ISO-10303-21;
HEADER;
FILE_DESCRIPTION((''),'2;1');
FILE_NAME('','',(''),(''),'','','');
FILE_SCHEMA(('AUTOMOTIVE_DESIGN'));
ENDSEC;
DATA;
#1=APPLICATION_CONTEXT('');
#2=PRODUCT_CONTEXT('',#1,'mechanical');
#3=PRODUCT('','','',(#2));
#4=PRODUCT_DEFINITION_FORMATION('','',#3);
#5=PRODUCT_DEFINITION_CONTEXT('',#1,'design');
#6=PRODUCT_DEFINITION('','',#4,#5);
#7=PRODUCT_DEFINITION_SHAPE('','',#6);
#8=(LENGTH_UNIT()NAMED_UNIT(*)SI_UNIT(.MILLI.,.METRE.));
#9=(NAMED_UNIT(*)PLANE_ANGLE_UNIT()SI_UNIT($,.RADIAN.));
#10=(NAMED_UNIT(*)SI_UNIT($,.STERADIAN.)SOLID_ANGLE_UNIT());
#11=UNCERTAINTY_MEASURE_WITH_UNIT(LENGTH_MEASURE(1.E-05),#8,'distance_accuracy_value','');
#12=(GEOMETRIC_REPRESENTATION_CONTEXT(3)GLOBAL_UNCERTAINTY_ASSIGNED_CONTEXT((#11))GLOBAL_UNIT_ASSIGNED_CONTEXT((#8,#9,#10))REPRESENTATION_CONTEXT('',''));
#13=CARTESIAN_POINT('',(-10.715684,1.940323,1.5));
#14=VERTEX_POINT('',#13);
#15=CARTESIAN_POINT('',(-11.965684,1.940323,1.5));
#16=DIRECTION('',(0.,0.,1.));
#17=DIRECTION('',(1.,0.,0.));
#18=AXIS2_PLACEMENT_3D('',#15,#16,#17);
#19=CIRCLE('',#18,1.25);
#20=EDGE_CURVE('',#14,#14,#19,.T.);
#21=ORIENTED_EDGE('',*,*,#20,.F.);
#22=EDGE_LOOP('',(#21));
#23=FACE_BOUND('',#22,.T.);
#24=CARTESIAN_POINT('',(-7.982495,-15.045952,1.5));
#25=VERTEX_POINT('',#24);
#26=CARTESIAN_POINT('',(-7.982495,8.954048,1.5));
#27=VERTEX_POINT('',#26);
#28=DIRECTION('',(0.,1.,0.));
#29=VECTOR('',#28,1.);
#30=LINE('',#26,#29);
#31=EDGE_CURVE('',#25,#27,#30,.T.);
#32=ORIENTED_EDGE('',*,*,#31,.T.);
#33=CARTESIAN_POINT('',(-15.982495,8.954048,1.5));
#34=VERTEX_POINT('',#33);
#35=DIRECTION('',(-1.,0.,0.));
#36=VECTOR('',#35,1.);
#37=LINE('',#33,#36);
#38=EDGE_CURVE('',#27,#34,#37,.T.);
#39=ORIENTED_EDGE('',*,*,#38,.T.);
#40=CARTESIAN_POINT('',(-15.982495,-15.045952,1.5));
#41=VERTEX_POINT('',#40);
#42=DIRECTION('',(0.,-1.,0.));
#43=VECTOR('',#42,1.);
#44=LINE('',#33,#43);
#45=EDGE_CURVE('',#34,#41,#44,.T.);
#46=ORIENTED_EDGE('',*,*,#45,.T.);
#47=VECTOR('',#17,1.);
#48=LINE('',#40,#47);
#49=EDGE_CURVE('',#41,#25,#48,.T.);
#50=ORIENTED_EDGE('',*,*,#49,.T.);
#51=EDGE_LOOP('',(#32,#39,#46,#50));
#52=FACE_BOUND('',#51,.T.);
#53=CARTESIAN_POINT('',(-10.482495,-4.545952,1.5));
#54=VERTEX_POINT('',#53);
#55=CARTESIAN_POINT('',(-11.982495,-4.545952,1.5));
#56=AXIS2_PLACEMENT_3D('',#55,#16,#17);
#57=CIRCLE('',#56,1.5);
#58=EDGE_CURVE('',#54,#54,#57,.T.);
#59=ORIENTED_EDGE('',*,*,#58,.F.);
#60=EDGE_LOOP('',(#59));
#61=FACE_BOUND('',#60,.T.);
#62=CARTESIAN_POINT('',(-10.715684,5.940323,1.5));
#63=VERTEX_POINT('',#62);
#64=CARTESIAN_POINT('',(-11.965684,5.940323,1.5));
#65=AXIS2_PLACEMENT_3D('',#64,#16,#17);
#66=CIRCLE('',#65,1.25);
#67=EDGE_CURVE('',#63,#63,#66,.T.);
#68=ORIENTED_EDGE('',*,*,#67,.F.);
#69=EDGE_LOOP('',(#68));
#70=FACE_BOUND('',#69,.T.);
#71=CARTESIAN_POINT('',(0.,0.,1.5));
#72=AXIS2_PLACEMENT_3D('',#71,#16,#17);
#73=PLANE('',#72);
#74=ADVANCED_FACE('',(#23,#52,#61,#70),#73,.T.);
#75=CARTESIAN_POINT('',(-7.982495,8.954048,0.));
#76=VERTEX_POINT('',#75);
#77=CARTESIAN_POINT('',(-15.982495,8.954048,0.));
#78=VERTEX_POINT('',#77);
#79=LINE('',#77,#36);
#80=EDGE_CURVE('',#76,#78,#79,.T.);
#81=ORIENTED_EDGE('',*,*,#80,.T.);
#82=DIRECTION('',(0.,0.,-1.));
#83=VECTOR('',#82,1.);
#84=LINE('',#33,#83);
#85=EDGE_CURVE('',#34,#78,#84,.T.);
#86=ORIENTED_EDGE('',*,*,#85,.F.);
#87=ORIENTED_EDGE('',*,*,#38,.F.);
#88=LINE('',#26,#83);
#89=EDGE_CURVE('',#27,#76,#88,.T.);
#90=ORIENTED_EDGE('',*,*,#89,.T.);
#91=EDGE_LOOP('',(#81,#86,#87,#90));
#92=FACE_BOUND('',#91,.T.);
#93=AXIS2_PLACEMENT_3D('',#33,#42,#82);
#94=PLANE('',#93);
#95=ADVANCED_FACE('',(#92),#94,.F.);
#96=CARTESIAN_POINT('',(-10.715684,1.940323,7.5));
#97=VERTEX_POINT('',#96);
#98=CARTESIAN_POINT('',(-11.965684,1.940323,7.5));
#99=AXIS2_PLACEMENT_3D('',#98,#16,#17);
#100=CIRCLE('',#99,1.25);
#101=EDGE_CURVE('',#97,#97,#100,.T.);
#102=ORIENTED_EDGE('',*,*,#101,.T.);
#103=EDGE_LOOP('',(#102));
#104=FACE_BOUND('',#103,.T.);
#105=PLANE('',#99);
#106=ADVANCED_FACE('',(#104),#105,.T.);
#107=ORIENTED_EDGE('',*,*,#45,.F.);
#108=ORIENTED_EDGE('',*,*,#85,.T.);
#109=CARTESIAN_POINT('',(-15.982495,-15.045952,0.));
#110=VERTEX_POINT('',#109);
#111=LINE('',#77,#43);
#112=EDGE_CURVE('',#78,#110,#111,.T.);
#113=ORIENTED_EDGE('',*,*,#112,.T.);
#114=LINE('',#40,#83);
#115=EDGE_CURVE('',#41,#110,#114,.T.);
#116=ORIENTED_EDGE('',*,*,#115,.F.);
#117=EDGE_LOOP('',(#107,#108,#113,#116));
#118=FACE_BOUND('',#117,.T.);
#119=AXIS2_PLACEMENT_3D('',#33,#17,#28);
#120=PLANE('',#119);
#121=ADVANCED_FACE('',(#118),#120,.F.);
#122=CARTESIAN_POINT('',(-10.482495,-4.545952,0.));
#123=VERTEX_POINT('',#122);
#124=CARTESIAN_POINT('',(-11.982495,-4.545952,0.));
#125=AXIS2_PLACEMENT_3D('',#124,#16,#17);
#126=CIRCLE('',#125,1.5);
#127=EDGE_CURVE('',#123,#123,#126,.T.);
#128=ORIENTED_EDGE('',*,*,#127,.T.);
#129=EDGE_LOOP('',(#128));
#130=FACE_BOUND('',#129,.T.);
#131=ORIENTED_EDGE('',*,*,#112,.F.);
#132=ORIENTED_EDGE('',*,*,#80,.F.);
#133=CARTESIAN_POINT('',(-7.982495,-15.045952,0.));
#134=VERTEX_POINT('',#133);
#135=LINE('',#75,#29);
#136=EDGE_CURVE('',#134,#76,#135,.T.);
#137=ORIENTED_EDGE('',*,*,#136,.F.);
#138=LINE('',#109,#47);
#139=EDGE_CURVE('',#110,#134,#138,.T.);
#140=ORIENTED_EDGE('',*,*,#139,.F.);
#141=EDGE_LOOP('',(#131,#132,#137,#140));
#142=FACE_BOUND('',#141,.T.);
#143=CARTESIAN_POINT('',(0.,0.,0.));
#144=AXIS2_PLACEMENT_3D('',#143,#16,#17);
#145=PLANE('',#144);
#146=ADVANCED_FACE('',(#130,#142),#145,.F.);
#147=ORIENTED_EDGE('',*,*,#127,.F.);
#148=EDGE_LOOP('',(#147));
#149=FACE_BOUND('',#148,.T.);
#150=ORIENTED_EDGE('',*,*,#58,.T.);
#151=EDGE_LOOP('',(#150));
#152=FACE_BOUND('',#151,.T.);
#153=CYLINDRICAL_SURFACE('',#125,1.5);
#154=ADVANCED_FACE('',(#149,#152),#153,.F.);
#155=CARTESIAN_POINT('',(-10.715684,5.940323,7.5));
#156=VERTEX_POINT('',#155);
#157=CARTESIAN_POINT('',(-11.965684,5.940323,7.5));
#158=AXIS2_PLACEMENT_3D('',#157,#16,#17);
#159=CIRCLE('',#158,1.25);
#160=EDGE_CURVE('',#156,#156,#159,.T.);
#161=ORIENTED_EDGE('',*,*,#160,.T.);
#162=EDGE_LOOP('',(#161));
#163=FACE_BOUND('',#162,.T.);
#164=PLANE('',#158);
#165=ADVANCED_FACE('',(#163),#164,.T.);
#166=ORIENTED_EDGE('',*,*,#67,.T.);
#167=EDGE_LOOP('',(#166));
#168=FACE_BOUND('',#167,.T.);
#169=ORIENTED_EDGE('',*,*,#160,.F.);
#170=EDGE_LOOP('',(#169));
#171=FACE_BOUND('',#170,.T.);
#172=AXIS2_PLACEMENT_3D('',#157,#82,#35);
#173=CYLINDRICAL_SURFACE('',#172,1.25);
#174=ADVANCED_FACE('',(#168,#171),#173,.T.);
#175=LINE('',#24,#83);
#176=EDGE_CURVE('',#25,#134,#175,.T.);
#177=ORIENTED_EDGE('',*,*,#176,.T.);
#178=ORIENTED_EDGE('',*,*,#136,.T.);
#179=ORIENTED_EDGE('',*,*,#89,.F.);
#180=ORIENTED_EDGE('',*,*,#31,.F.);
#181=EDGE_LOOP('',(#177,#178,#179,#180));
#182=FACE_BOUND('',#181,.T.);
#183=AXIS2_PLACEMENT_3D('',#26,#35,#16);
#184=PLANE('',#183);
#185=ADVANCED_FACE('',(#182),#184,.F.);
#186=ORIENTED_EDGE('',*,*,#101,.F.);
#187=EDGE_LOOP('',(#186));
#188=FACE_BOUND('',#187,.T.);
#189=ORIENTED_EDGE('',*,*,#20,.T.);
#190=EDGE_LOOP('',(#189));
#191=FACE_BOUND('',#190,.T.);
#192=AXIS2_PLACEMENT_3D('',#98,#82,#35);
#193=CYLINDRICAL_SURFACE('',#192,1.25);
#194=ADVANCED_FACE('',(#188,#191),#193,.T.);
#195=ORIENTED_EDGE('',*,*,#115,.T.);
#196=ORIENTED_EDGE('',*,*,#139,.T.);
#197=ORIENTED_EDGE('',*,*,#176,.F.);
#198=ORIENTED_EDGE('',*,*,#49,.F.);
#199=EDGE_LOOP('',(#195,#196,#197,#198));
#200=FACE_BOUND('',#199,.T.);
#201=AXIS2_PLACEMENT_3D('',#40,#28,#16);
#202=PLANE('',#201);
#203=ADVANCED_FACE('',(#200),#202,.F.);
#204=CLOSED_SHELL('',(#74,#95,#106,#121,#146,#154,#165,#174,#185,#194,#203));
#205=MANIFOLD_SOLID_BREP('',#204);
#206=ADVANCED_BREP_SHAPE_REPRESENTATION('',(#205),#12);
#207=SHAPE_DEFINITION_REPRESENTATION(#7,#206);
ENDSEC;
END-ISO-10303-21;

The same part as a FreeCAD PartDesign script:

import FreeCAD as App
import Part
import Sketcher

V = App.Vector
Q = App.Units.Quantity

doc = App.newDocument("Part")
body = doc.addObject("PartDesign::Body", "Body")

sketch1 = body.newObject("Sketcher::SketchObject", "Sketch")
sketch1.AttachmentSupport = (doc.getObject("XY_Plane"), [""])
sketch1.MapMode = "FlatFace"
sketch1.addGeometry([
    Part.LineSegment(V(-16, 9, 0), V(-16, -15, 0)),
    Part.LineSegment(V(-16, -15, 0), V(-8, -15, 0)),
    Part.LineSegment(V(-8, -15, 0), V(-8, 9, 0)),
    Part.LineSegment(V(-8, 9, 0), V(-16, 9, 0)),
], False)
sketch1.addConstraint([
    Sketcher.Constraint("Coincident", 0, 2, 1, 1),
    Sketcher.Constraint("Coincident", 1, 2, 2, 1),
    Sketcher.Constraint("Coincident", 2, 2, 3, 1),
    Sketcher.Constraint("Coincident", 3, 2, 0, 1),
    Sketcher.Constraint("Vertical", 0),
    Sketcher.Constraint("Horizontal", 1),
    Sketcher.Constraint("Vertical", 2),
    Sketcher.Constraint("Horizontal", 3),
    Sketcher.Constraint("DistanceX", 1, 1, 1, 2, Q("8 mm")),
    Sketcher.Constraint("DistanceY", 0, 2, 0, 1, Q("24 mm")),
    Sketcher.Constraint("DistanceY", 0, 2, -1, 1, Q("15.045952 mm")),
    Sketcher.Constraint("DistanceX", 0, 2, -1, 1, Q("15.982495 mm")),
])
pad1 = body.newObject("PartDesign::Pad", "Pad")
pad1.Profile = sketch1
pad1.Length = 1.5

sketch2 = body.newObject("Sketcher::SketchObject", "Sketch001")
sketch2.AttachmentSupport = (doc.getObject("XY_Plane"), [""])
sketch2.MapMode = "FlatFace"
sketch2.AttachmentOffset = App.Placement(V(0, 0, 1.5), App.Rotation())
sketch2.addGeometry(Part.Circle(V(-12, -4.5, 0), V(0, 0, 1), 1.5), False)
sketch2.addConstraint([
    Sketcher.Constraint("Diameter", 0, Q("3 mm")),
    Sketcher.Constraint("DistanceY", 0, 3, -1, 1, Q("4.545952 mm")),
    Sketcher.Constraint("DistanceX", 0, 3, -1, 1, Q("11.982495 mm")),
])
pocket1 = body.newObject("PartDesign::Pocket", "Pocket")
pocket1.Profile = sketch2
pocket1.Type = "ThroughAll"

sketch3 = body.newObject("Sketcher::SketchObject", "Sketch002")
sketch3.AttachmentSupport = (doc.getObject("XY_Plane"), [""])
sketch3.MapMode = "FlatFace"
sketch3.AttachmentOffset = App.Placement(V(0, 0, 1.5), App.Rotation())
sketch3.addGeometry([
    Part.Circle(V(-12, 5.9, 0), V(0, 0, 1), 1.2),
    Part.Circle(V(-12, 1.9, 0), V(0, 0, 1), 1.2),
], False)
sketch3.addConstraint([
    Sketcher.Constraint("Equal", 0, 1),
    Sketcher.Constraint("Vertical", 0, 3, 1, 3),
    Sketcher.Constraint("Diameter", 0, Q("2.5 mm")),
    Sketcher.Constraint("DistanceY", 1, 3, 0, 3, Q("4 mm")),
    Sketcher.Constraint("DistanceX", 0, 3, -1, 1, Q("11.965684 mm")),
    Sketcher.Constraint("DistanceY", -1, 1, 0, 3, Q("5.940323 mm")),
])
pad2 = body.newObject("PartDesign::Pad", "Pad001")
pad2.Profile = sketch3
pad2.Length = 6

doc.recompute()
